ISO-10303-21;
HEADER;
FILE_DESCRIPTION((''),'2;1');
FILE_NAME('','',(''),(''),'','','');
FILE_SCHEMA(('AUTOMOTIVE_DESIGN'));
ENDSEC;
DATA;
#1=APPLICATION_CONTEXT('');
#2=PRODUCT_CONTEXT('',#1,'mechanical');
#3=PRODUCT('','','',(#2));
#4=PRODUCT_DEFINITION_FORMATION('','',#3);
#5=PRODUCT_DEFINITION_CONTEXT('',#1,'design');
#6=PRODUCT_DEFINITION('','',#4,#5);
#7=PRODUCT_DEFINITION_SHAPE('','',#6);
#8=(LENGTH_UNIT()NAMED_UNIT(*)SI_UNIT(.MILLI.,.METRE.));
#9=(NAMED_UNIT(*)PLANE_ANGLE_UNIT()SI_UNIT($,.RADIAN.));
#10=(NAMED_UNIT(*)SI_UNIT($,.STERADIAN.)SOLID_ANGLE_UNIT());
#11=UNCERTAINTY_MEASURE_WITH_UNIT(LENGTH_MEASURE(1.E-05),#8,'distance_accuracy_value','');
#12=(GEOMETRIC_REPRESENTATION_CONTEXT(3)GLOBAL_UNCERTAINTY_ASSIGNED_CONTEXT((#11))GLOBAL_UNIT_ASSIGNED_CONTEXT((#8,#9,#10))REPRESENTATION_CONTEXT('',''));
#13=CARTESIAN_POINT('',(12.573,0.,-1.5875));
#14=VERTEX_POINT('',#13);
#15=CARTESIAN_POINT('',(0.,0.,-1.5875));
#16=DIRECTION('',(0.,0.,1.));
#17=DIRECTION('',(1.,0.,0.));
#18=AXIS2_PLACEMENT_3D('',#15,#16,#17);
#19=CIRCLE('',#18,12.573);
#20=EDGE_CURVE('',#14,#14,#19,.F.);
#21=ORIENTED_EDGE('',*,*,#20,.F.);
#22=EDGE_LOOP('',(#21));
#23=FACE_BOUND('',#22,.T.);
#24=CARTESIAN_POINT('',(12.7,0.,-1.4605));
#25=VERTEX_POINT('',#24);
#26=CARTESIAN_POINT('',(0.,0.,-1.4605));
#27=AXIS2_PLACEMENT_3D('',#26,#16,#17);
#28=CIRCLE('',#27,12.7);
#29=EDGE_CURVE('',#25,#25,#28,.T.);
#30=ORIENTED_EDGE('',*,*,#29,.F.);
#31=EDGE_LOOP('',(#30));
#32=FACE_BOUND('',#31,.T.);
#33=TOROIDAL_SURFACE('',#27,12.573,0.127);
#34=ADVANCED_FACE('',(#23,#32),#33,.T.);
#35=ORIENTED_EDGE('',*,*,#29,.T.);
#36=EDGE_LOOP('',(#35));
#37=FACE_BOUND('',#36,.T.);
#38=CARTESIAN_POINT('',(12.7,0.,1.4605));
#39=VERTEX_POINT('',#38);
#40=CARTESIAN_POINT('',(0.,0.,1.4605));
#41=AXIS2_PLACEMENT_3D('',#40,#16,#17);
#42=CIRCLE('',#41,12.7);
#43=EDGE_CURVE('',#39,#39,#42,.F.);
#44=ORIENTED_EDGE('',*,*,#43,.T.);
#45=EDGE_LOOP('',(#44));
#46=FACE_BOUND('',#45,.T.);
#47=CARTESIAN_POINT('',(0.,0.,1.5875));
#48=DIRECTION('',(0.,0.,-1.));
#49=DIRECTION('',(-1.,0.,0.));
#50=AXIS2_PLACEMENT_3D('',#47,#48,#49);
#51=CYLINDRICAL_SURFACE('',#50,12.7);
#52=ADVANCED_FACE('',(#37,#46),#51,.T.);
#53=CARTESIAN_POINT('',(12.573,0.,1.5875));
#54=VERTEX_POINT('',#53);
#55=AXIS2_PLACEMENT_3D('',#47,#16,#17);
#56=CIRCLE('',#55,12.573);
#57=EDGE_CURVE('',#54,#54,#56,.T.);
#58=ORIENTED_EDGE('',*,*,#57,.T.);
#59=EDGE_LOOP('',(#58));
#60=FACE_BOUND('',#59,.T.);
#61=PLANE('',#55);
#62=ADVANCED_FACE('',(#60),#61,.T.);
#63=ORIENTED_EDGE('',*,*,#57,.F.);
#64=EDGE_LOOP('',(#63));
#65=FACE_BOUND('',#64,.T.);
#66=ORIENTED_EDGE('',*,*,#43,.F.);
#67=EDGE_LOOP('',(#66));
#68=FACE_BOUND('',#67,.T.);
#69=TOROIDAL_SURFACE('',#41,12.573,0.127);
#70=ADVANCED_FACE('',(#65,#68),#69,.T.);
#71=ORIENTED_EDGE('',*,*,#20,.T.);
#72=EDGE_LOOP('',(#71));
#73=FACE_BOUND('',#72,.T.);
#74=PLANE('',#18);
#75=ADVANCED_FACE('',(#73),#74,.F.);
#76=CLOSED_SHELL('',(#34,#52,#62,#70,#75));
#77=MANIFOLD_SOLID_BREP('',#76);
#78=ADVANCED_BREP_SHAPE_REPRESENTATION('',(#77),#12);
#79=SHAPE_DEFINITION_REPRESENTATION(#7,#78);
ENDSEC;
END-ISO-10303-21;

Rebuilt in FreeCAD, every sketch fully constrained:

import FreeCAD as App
import Part
import Sketcher
Q = App.Units.Quantity


def edges_at(feature, points):
    """Names of the edges that pass closest to the given points."""
    edges = feature.Shape.Edges
    near = lambda p: min(range(len(edges)), key=lambda i: edges[i].distToShape(Part.Vertex(*p))[0])
    return sorted({f"Edge{near(p) + 1}" for p in points})

doc = App.newDocument("Part")
body = doc.addObject("PartDesign::Body", "Body")

sketch1 = body.newObject("Sketcher::SketchObject", "Sketch")
sketch1.AttachmentSupport = (doc.getObject("XY_Plane"), [""])
sketch1.MapMode = "FlatFace"
sketch1.addGeometry(Part.Circle(App.Vector(0, 0, 0), App.Vector(0, 0, 1), 12.7), False)
sketch1.addConstraint(Sketcher.Constraint("Coincident", 0, 3, -1, 1))
sketch1.addConstraint(Sketcher.Constraint("Diameter", 0, Q("1 in")))
pad1 = body.newObject("PartDesign::Pad", "Pad")
pad1.Profile = sketch1
pad1.Type = "TwoLengths"
pad1.Length = Q("0.0625 in")
pad1.Length2 = Q("0.0625 in")
doc.recompute()

fillet = body.newObject("PartDesign::Fillet", "Fillet")
fillet.Base = (pad1, edges_at(pad1, [(-12.7, 0, -1.587), (-12.7, 0, 1.587)]))
fillet.Radius = Q("0.005 in")

doc.recompute()
